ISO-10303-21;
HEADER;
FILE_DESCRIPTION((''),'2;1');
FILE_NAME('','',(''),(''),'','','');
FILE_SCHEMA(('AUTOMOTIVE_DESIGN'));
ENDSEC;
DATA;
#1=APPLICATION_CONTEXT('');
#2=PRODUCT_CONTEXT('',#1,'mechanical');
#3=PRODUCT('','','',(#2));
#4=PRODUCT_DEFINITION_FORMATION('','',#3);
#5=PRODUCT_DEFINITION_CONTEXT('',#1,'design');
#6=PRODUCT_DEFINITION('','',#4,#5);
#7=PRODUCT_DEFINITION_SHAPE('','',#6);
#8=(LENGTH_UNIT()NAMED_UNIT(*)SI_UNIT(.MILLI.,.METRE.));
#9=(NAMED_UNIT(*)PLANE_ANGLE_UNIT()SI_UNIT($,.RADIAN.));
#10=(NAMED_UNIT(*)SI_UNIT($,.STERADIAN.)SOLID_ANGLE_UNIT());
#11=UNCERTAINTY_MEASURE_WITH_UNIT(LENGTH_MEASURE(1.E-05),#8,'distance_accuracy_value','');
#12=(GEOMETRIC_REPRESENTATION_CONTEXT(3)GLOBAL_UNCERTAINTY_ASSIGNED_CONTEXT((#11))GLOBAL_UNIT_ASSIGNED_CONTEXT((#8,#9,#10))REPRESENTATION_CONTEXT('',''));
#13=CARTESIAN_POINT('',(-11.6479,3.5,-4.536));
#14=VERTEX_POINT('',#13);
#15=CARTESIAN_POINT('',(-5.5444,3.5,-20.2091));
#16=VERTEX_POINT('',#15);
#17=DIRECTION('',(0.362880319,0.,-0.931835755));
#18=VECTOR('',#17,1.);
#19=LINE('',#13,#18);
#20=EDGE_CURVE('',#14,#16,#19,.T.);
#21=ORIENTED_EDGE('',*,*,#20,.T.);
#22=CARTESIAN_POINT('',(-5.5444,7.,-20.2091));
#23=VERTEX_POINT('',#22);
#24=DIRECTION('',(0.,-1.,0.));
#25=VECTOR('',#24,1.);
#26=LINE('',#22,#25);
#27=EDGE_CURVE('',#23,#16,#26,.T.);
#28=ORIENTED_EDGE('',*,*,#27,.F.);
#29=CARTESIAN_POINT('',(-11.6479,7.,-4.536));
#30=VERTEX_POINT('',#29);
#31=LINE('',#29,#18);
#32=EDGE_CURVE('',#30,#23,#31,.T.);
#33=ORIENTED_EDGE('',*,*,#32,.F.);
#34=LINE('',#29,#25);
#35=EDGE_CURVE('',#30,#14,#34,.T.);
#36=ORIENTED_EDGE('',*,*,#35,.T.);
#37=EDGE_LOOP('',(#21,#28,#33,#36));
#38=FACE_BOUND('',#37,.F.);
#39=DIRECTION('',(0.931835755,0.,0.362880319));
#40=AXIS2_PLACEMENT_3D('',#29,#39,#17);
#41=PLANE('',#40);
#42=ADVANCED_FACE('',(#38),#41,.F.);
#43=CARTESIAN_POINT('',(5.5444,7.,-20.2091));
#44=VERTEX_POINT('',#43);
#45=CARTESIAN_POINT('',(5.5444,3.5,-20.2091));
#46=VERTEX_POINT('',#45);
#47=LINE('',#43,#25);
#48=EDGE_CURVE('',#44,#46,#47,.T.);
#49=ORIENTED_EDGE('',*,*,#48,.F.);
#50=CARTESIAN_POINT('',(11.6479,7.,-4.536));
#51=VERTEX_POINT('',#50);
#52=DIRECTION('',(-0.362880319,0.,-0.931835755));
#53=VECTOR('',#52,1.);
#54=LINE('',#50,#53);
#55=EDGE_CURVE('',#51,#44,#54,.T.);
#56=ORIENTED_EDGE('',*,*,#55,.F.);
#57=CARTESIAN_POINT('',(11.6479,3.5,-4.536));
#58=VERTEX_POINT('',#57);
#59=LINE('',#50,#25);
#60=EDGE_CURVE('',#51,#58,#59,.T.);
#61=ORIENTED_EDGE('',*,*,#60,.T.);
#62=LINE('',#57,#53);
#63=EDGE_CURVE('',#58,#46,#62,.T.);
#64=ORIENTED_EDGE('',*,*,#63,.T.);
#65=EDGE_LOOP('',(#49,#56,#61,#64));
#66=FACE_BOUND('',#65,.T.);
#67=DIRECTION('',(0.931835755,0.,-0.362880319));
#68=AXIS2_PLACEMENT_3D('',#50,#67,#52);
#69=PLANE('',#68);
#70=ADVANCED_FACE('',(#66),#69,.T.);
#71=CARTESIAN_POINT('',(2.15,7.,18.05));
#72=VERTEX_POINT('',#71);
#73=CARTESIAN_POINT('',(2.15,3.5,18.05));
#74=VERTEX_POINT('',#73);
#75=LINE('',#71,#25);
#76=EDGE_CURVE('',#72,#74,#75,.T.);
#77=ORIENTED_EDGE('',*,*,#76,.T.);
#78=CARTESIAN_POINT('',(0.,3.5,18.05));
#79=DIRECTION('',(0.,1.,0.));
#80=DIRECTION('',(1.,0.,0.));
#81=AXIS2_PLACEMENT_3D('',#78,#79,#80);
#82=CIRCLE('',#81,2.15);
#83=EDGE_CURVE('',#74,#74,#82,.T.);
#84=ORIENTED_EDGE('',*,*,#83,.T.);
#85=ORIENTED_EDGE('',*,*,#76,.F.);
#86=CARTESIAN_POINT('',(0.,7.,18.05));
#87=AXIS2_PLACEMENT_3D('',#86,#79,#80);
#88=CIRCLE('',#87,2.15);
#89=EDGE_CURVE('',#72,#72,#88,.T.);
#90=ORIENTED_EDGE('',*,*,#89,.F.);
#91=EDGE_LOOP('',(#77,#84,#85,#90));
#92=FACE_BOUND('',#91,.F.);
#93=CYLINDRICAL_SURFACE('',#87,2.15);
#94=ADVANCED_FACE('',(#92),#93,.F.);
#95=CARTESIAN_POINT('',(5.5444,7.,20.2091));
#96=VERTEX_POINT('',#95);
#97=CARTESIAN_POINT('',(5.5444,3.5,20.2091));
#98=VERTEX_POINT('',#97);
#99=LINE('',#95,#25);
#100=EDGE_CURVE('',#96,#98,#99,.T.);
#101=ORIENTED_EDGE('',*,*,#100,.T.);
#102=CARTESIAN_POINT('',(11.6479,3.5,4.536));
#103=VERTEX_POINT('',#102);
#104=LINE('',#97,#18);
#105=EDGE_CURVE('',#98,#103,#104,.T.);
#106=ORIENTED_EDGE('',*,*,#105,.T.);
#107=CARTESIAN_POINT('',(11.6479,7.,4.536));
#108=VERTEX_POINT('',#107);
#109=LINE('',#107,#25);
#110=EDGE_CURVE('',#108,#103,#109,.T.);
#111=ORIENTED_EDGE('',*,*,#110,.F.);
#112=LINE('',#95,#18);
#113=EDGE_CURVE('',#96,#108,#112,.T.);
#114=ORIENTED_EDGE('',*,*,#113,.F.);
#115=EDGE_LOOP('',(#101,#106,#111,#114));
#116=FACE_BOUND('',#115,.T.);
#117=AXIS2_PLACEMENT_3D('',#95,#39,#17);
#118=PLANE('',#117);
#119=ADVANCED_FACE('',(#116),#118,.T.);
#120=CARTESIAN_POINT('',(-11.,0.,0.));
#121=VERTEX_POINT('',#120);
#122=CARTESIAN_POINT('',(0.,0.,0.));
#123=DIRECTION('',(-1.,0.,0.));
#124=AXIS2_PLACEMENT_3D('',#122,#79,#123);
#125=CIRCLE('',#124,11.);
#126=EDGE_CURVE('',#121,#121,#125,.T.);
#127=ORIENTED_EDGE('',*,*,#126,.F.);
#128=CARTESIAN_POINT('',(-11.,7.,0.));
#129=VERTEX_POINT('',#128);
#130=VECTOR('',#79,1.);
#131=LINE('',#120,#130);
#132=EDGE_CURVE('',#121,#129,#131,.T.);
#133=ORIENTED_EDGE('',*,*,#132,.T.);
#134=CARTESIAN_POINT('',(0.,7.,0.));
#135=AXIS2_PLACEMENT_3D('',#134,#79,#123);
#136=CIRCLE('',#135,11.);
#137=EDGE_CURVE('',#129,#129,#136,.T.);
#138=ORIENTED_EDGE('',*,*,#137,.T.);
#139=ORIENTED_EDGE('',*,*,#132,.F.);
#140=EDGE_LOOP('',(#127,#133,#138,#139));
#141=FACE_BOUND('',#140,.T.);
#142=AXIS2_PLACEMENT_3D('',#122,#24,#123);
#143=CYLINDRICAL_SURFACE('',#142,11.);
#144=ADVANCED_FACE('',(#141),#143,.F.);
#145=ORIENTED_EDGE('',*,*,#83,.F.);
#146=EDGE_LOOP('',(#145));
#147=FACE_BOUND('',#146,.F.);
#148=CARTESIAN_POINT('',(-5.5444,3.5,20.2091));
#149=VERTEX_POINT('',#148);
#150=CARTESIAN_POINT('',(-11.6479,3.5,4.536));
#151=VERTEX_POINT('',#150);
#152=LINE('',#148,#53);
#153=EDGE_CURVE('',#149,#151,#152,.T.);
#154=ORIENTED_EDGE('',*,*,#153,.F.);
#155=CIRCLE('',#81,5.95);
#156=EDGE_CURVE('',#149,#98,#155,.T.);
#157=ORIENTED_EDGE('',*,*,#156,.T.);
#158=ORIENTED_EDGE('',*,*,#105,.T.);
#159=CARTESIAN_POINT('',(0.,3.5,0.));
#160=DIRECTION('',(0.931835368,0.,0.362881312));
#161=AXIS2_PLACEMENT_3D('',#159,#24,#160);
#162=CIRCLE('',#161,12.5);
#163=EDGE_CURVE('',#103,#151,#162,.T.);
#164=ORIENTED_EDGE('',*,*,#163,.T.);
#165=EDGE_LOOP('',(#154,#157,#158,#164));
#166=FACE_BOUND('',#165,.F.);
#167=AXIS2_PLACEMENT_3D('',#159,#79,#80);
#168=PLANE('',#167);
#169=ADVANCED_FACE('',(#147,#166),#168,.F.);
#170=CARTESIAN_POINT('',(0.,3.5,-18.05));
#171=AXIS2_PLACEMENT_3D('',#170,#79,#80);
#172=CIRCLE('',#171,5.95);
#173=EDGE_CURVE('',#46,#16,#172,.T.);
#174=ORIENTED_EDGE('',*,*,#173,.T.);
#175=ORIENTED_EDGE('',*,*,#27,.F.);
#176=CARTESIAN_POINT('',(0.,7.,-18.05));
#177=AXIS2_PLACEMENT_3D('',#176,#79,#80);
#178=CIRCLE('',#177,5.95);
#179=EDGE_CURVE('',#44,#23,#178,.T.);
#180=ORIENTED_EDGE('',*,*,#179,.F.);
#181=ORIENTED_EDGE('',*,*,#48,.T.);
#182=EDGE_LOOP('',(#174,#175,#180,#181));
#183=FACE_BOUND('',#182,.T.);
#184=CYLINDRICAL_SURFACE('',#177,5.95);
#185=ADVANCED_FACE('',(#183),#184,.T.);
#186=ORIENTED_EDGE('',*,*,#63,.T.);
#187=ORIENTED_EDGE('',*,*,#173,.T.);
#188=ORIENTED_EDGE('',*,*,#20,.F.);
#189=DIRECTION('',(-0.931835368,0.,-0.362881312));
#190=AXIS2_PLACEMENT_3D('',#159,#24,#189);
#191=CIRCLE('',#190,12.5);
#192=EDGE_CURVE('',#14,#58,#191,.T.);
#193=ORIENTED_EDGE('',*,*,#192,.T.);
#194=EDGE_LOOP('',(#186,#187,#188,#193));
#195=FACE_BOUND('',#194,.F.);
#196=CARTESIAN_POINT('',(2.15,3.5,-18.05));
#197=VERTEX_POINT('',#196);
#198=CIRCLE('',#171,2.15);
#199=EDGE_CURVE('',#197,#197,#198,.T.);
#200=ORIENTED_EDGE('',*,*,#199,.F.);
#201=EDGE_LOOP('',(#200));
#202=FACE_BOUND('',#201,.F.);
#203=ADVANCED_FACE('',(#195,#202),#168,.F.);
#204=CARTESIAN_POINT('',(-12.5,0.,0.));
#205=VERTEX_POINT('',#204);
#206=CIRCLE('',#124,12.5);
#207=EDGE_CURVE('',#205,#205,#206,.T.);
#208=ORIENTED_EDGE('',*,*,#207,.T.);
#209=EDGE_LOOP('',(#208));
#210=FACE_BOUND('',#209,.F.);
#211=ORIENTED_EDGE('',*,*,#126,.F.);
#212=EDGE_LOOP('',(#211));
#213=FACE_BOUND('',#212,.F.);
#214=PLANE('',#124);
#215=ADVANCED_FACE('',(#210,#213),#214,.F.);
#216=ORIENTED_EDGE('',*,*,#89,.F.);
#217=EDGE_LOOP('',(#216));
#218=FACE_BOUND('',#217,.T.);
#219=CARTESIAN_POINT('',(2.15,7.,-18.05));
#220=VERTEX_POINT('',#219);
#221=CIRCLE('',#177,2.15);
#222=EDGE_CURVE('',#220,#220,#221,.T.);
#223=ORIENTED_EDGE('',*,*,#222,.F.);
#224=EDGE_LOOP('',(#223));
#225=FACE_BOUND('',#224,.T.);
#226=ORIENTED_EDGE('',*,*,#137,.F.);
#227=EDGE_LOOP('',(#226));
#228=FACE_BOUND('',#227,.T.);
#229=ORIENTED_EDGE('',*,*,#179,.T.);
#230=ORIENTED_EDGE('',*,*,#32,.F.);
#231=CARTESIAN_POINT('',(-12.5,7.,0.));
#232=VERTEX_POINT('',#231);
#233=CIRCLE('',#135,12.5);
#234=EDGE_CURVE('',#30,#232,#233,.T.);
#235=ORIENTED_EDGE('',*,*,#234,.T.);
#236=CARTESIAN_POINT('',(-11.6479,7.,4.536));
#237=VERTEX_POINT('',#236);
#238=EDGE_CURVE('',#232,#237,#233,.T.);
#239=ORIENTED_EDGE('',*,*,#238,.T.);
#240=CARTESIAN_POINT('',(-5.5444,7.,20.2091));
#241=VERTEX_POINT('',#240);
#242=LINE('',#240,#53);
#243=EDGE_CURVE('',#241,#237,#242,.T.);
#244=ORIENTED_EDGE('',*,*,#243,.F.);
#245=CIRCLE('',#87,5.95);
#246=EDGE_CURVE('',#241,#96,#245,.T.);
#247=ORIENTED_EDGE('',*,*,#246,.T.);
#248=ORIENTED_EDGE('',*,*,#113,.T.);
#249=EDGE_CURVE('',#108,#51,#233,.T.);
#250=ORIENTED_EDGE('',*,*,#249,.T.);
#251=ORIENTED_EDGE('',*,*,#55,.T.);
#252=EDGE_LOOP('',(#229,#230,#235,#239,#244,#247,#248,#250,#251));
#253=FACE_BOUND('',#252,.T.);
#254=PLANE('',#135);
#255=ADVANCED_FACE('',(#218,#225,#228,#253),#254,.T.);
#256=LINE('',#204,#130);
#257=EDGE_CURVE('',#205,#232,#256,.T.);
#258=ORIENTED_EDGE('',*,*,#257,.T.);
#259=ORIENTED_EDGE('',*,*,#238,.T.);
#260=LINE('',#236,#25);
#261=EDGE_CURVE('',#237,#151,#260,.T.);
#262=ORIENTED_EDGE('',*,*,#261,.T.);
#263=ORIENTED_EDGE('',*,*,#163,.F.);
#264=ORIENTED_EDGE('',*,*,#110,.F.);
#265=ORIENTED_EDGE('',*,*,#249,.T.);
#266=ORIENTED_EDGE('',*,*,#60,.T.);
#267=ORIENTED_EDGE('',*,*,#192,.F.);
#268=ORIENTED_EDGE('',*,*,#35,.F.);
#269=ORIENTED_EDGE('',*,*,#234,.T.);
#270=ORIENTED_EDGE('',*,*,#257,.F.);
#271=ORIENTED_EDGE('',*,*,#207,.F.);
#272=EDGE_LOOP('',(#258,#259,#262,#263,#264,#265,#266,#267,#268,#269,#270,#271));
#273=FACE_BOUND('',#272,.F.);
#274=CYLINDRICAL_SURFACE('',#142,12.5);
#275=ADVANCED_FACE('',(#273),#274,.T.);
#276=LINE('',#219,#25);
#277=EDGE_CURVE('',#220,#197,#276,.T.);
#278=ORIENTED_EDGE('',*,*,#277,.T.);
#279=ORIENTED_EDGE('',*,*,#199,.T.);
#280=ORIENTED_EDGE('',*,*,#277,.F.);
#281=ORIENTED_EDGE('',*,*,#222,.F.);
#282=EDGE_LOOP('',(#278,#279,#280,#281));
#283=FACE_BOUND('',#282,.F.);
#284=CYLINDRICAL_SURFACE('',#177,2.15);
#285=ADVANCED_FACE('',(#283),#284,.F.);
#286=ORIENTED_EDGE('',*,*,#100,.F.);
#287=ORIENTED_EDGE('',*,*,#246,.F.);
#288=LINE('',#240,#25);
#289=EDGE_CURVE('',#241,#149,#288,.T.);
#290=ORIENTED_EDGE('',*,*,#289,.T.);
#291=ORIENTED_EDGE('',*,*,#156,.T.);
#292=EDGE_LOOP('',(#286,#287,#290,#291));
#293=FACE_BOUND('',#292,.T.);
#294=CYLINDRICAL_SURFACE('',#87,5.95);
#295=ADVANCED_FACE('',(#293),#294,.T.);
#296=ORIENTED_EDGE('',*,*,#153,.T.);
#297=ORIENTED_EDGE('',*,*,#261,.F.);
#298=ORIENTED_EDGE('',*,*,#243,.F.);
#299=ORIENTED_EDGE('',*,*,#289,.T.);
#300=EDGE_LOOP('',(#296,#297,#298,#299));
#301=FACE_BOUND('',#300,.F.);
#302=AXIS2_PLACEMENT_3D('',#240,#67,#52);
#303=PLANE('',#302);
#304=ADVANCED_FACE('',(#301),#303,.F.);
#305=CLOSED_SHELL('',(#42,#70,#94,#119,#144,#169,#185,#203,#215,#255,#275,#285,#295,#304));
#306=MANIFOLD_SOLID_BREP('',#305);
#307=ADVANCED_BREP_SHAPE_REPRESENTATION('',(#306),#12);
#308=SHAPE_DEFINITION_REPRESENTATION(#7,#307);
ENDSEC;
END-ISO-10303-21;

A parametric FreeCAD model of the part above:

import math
import FreeCAD as App
import Part
import Sketcher

V = App.Vector

doc = App.newDocument("Part")
body = doc.addObject("PartDesign::Body", "Body")

sketch1 = body.newObject("Sketcher::SketchObject", "Sketch")
sketch1.AttachmentSupport = (doc.getObject("XZ_Plane"), [""])
sketch1.MapMode = "FlatFace"
sketch1.addGeometry([
    Part.Circle(V(0, 0, 0), V(0, 0, 1), 12),
    Part.Circle(V(0, 0, 0), V(0, 0, 1), 11),
], False)
sketch1.addConstraint([
    Sketcher.Constraint("Coincident", 0, 3, -1, 1),
    Sketcher.Constraint("Coincident", 1, 3, -1, 1),
    Sketcher.Constraint("Diameter", 0, 25.0),
    Sketcher.Constraint("Diameter", 1, 22.0),
])
pad1 = body.newObject("PartDesign::Pad", "Pad")
pad1.Profile = sketch1
pad1.Length = 7
pad1.Reversed = True

sketch2 = body.newObject("Sketcher::SketchObject", "Sketch001")
sketch2.AttachmentSupport = (doc.getObject("XZ_Plane"), [""])
sketch2.MapMode = "FlatFace"
sketch2.AttachmentOffset = App.Placement(V(0, 0, -7), App.Rotation())
sketch2.addGeometry([
    Part.LineSegment(V(-11.6, 4.5, 0), V(-5.5, 20.2, 0)),
    Part.ArcOfCircle(Part.Circle(V(0, 18.1, 0), V(0, 0, 1), 6), math.radians(21), math.radians(159)),
    Part.LineSegment(V(5.5, 20.2, 0), V(11.6, 4.5, 0)),
    Part.ArcOfCircle(Part.Circle(V(0, 0, 0), V(0, 0, 1), 12.5), math.radians(21), math.radians(159)),
    Part.Circle(V(0, 18.1, 0), V(0, 0, 1), 2.1),
    Part.LineSegment(V(-5.5, -20.2, 0), V(-11.6, -4.5, 0)),
    Part.ArcOfCircle(Part.Circle(V(0, 0, 0), V(0, 0, 1), 12.5), math.radians(-159), math.radians(-21)),
    Part.LineSegment(V(11.6, -4.5, 0), V(5.5, -20.2, 0)),
    Part.ArcOfCircle(Part.Circle(V(0, -18.1, 0), V(0, 0, 1), 6), math.radians(-159), math.radians(-21)),
    Part.Circle(V(0, -18.1, 0), V(0, 0, 1), 2.1),
], False)
sketch2.addConstraint([
    Sketcher.Constraint("Tangent", 0, 2, 1, 2),
    Sketcher.Constraint("Tangent", 1, 1, 2, 1),
    Sketcher.Constraint("Tangent", 2, 2, 3, 1),
    Sketcher.Constraint("Tangent", 3, 2, 0, 1),
    Sketcher.Constraint("Tangent", 5, 2, 6, 1),
    Sketcher.Constraint("Tangent", 6, 2, 7, 1),
    Sketcher.Constraint("Tangent", 7, 2, 8, 2),
    Sketcher.Constraint("Tangent", 8, 1, 5, 1),
    Sketcher.Constraint("Coincident", 3, 3, -1, 1),
    Sketcher.Constraint("Coincident", 6, 3, -1, 1),
    Sketcher.Constraint("Coincident", 4, 3, 1, 3),
    Sketcher.Constraint("Coincident", 9, 3, 8, 3),
    Sketcher.Constraint("Equal", 3, 6),
    Sketcher.Constraint("Equal", 1, 8),
    Sketcher.Constraint("Equal", 4, 9),
    Sketcher.Constraint("Symmetric", 1, 3, 8, 3, -1, 1),
    Sketcher.Constraint("PointOnObject", 1, 3, -2),
    Sketcher.Constraint("Diameter", 4, 4.3),
    Sketcher.Constraint("Radius", 3, 12.5),
    Sketcher.Constraint("DistanceY", -1, 1, 1, 3, 18.05),
    Sketcher.Constraint("Radius", 1, 5.95),
])
pad2 = body.newObject("PartDesign::Pad", "Pad001")
pad2.Profile = sketch2
pad2.Length = 3.5

doc.recompute()
